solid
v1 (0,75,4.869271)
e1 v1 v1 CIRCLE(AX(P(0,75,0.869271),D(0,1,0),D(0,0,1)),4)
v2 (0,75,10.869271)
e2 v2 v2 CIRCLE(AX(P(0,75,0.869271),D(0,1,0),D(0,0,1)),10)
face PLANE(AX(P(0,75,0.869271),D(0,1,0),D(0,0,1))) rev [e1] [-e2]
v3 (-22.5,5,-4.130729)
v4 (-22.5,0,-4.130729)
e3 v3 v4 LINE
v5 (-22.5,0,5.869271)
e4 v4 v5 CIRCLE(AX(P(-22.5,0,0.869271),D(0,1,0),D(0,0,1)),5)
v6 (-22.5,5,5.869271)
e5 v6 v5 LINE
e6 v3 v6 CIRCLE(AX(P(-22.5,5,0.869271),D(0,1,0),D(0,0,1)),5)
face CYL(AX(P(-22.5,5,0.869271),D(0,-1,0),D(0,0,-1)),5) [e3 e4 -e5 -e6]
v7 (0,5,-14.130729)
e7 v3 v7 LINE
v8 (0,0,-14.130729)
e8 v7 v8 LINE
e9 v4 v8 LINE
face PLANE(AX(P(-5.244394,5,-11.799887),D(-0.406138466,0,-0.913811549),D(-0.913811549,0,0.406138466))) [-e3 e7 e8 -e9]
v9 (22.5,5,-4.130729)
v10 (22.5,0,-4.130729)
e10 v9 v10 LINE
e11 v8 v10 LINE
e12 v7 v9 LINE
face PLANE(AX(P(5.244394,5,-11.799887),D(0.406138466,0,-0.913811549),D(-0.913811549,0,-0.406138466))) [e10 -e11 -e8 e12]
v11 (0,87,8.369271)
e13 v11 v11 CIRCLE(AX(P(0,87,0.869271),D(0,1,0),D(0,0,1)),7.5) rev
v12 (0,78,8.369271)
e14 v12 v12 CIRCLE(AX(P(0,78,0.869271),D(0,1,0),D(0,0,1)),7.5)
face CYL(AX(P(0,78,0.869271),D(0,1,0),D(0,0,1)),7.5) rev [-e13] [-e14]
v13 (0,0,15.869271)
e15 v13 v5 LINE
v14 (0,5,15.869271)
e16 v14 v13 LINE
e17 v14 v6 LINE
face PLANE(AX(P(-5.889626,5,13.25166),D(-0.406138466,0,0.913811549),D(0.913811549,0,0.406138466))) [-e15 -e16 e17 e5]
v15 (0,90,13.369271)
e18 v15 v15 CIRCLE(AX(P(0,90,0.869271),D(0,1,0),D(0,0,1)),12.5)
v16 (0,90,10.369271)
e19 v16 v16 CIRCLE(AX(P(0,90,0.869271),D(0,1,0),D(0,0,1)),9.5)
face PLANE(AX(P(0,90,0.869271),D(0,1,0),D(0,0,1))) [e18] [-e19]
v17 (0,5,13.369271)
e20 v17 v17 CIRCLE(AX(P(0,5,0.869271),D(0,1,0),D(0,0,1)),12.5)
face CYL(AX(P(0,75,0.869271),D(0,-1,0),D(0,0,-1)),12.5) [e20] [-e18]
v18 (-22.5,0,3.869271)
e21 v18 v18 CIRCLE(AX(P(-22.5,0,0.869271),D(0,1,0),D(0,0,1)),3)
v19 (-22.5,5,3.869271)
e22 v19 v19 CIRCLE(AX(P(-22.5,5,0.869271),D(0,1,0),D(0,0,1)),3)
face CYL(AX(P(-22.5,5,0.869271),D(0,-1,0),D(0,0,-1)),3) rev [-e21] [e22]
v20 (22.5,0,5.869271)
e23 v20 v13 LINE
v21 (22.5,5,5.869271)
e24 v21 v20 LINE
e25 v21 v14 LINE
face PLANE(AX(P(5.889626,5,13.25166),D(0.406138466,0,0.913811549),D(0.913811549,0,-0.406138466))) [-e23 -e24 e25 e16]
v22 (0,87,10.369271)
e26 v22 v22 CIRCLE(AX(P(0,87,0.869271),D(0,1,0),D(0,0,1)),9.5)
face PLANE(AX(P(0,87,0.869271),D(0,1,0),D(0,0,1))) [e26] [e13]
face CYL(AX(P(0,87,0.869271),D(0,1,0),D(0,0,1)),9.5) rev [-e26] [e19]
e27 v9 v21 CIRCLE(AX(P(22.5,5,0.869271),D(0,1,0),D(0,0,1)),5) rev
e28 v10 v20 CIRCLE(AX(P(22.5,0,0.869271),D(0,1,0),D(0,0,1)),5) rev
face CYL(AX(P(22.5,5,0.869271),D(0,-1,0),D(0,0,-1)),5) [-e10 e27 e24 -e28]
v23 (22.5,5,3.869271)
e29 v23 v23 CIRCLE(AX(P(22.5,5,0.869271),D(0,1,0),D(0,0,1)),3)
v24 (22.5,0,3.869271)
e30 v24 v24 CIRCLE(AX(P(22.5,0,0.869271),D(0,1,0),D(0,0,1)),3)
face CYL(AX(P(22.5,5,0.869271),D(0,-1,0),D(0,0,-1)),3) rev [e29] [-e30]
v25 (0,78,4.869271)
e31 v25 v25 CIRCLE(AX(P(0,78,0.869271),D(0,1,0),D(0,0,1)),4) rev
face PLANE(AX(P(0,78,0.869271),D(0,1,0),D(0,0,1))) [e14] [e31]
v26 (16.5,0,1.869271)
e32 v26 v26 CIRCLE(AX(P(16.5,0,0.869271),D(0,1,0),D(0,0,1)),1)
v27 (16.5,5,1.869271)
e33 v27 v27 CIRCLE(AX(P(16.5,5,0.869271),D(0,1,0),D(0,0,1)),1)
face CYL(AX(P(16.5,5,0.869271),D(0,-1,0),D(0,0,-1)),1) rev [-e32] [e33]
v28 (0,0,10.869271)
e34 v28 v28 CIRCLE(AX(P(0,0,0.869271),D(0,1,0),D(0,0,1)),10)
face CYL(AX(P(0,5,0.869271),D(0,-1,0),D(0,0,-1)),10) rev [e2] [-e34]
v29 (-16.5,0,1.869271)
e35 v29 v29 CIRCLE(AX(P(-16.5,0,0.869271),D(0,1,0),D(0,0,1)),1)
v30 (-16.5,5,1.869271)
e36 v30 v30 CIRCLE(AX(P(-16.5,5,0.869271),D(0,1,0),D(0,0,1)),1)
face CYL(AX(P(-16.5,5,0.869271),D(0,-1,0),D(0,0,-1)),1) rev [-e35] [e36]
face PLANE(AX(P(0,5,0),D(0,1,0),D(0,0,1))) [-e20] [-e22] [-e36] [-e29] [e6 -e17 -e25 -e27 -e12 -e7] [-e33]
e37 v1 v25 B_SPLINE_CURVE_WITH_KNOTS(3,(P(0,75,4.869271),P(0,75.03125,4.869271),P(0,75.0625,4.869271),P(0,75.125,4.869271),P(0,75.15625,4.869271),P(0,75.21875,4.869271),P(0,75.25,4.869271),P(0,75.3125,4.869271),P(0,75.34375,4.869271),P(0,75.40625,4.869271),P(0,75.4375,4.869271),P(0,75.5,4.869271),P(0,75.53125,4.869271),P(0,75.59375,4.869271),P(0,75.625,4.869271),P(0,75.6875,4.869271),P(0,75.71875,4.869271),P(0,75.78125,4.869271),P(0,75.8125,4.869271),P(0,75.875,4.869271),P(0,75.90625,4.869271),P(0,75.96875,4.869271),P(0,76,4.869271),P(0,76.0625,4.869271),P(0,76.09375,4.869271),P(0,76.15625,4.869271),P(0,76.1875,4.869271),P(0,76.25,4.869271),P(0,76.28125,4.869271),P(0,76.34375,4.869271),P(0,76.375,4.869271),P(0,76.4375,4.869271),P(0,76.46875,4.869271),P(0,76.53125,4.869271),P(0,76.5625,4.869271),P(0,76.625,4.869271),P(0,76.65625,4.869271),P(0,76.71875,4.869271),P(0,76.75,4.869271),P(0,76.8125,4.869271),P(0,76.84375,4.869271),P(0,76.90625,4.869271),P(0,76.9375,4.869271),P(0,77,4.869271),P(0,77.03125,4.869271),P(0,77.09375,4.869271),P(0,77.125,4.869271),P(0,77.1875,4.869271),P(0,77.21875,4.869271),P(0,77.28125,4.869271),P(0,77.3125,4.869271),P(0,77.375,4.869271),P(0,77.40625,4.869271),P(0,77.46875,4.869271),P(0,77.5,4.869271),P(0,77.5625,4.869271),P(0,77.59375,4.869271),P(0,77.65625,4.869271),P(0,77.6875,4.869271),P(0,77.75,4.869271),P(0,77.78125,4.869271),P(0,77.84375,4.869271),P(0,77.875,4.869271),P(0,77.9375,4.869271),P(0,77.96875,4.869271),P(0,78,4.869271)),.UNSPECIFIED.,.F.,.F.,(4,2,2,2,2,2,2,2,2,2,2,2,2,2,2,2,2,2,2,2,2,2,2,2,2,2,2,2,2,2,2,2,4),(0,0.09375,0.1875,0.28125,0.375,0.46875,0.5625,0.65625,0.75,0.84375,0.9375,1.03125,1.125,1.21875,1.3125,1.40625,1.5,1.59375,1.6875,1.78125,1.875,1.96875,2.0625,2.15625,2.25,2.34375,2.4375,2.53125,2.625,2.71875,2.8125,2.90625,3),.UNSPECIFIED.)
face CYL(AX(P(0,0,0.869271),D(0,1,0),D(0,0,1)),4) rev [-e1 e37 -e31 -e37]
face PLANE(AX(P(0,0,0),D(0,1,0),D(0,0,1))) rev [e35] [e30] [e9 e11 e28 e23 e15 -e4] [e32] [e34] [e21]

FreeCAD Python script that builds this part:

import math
import FreeCAD as App
import Part
import Sketcher

V = App.Vector
Q = App.Units.Quantity

doc = App.newDocument("Part")
body = doc.addObject("PartDesign::Body", "Body")

sketch1 = doc.addObject("Sketcher::SketchObject", "Sketch")
body.addObject(sketch1)
sketch1.AttachmentSupport = (doc.XZ_Plane, [""])
sketch1.MapMode = "FlatFace"
sketch1.addGeometry(Part.LineSegment(V(0, -14.1, 0), V(-22.5, -4.1, 0)), False)
sketch1.addGeometry(Part.ArcOfCircle(Part.Circle(V(-22.5, 0.9, 0), V(0, 0, 1), 5), math.radians(90), math.radians(270)), False)
sketch1.addGeometry(Part.LineSegment(V(-22.5, 5.9, 0), V(0, 15.9, 0)), False)
sketch1.addGeometry(Part.LineSegment(V(0, 15.9, 0), V(22.5, 5.9, 0)), False)
sketch1.addGeometry(Part.ArcOfCircle(Part.Circle(V(22.5, 0.9, 0), V(0, 0, 1), 5), math.radians(-90), math.radians(90)), False)
sketch1.addGeometry(Part.LineSegment(V(22.5, -4.1, 0), V(0, -14.1, 0)), False)
sketch1.addGeometry(Part.Circle(V(22.5, 0.9, 0), V(0, 0, 1), 3), False)
sketch1.addGeometry(Part.Circle(V(16.5, 0.9, 0), V(0, 0, 1), 1), False)
sketch1.addGeometry(Part.Circle(V(0, 0.9, 0), V(0, 0, 1), 10), False)
sketch1.addGeometry(Part.Circle(V(-16.5, 0.9, 0), V(0, 0, 1), 1), False)
sketch1.addGeometry(Part.Circle(V(-22.5, 0.9, 0), V(0, 0, 1), 3), False)
sketch1.addConstraint(Sketcher.Constraint("Coincident", 0, 2, 1, 2))
sketch1.addConstraint(Sketcher.Constraint("Coincident", 1, 1, 2, 1))
sketch1.addConstraint(Sketcher.Constraint("Coincident", 2, 2, 3, 1))
sketch1.addConstraint(Sketcher.Constraint("Coincident", 3, 2, 4, 2))
sketch1.addConstraint(Sketcher.Constraint("Coincident", 4, 1, 5, 1))
sketch1.addConstraint(Sketcher.Constraint("Coincident", 5, 2, 0, 1))
sketch1.addConstraint(Sketcher.Constraint("Coincident", 6, 3, 4, 3))
sketch1.addConstraint(Sketcher.Constraint("Coincident", 10, 3, 1, 3))
sketch1.addConstraint(Sketcher.Constraint("Equal", 1, 4))
sketch1.addConstraint(Sketcher.Constraint("Equal", 7, 9))
sketch1.addConstraint(Sketcher.Constraint("Equal", 6, 10))
sketch1.addConstraint(Sketcher.Constraint("Symmetric", 1, 3, 4, 3, -2))
sketch1.addConstraint(Sketcher.Constraint("Symmetric", 7, 3, 9, 3, -2))
sketch1.addConstraint(Sketcher.Constraint("PointOnObject", 8, 3, -2))
sketch1.addConstraint(Sketcher.Constraint("PointOnObject", 2, 2, -2))
sketch1.addConstraint(Sketcher.Constraint("PointOnObject", 5, 2, -2))
sketch1.addConstraint(Sketcher.Constraint("Parallel", 0, 3))
sketch1.addConstraint(Sketcher.Constraint("Parallel", 2, 5))
sketch1.addConstraint(Sketcher.Constraint("Horizontal", 6, 3, 7, 3))
sketch1.addConstraint(Sketcher.Constraint("Horizontal", 7, 3, 8, 3))
sketch1.addConstraint(Sketcher.Constraint("Vertical", 10, 3, 0, 2))
sketch1.addConstraint(Sketcher.Constraint("Vertical", 0, 2, 1, 1))
sketch1.addConstraint(Sketcher.Constraint("Vertical", 6, 3, 3, 2))
sketch1.addConstraint(Sketcher.Constraint("Diameter", 6, Q("6 mm")))
sketch1.addConstraint(Sketcher.Constraint("Diameter", 7, Q("2 mm")))
sketch1.addConstraint(Sketcher.Constraint("Diameter", 8, Q("20 mm")))
sketch1.addConstraint(Sketcher.Constraint("Radius", 1, Q("5 mm")))
sketch1.addConstraint(Sketcher.Constraint("DistanceX", 1, 3, 4, 3, Q("45 mm")))
sketch1.addConstraint(Sketcher.Constraint("DistanceX", 7, 3, 4, 3, Q("6 mm")))
sketch1.addConstraint(Sketcher.Constraint("DistanceY", 8, 3, 2, 2, Q("15 mm")))
sketch1.addConstraint(Sketcher.Constraint("DistanceY", -1, 1, 1, 3, Q("0.869271 mm")))
pad1 = doc.addObject("PartDesign::Pad", "Pad")
body.addObject(pad1)
pad1.Profile = sketch1
pad1.Length = 5
pad1.Reversed = True

sketch2 = doc.addObject("Sketcher::SketchObject", "Sketch001")
body.addObject(sketch2)
sketch2.AttachmentSupport = (doc.XZ_Plane, [""])
sketch2.MapMode = "FlatFace"
sketch2.AttachmentOffset = App.Placement(V(0, 0, -5), App.Rotation())
sketch2.addGeometry(Part.Circle(V(0, 1, 0), V(0, 0, 1), 12), False)
sketch2.addGeometry(Part.Circle(V(0, 1, 0), V(0, 0, 1), 10), False)
sketch2.addConstraint(Sketcher.Constraint("Coincident", 1, 3, 0, 3))
sketch2.addConstraint(Sketcher.Constraint("PointOnObject", 0, 3, -2))
sketch2.addConstraint(Sketcher.Constraint("Diameter", 0, Q("25 mm")))
sketch2.addConstraint(Sketcher.Constraint("Diameter", 1, Q("20 mm")))
sketch2.addConstraint(Sketcher.Constraint("DistanceY", -1, 1, 0, 3, Q("0.869271 mm")))
pad2 = doc.addObject("PartDesign::Pad", "Pad001")
body.addObject(pad2)
pad2.Profile = sketch2
pad2.Length = 70
pad2.Reversed = True

sketch3 = doc.addObject("Sketcher::SketchObject", "Sketch002")
body.addObject(sketch3)
sketch3.AttachmentSupport = (doc.XZ_Plane, [""])
sketch3.MapMode = "FlatFace"
sketch3.AttachmentOffset = App.Placement(V(0, 0, -75), App.Rotation())
sketch3.addGeometry(Part.Circle(V(0, 1, 0), V(0, 0, 1), 12), False)
sketch3.addConstraint(Sketcher.Constraint("PointOnObject", 0, 3, -2))
sketch3.addConstraint(Sketcher.Constraint("Diameter", 0, Q("25 mm")))
sketch3.addConstraint(Sketcher.Constraint("DistanceY", -1, 1, 0, 3, Q("0.869271 mm")))
pad3 = doc.addObject("PartDesign::Pad", "Pad002")
body.addObject(pad3)
pad3.Profile = sketch3
pad3.Length = 15
pad3.Reversed = True

sketch4 = doc.addObject("Sketcher::SketchObject", "Sketch003")
body.addObject(sketch4)
sketch4.AttachmentSupport = (doc.XZ_Plane, [""])
sketch4.MapMode = "FlatFace"
sketch4.AttachmentOffset = App.Placement(V(0, 0, -90), App.Rotation())
sketch4.addGeometry(Part.Circle(V(0, 0.9, 0), V(0, 0, 1), 4), False)
sketch4.addConstraint(Sketcher.Constraint("PointOnObject", 0, 3, -2))
sketch4.addConstraint(Sketcher.Constraint("Diameter", 0, Q("8 mm")))
sketch4.addConstraint(Sketcher.Constraint("DistanceY", -1, 1, 0, 3, Q("0.869271 mm")))
pocket1 = doc.addObject("PartDesign::Pocket", "Pocket")
body.addObject(pocket1)
pocket1.Profile = sketch4
pocket1.Type = "ThroughAll"
pocket1.Reversed = True

sketch5 = doc.addObject("Sketcher::SketchObject", "Sketch004")
body.addObject(sketch5)
sketch5.AttachmentSupport = (doc.XZ_Plane, [""])
sketch5.MapMode = "FlatFace"
sketch5.AttachmentOffset = App.Placement(V(0, 0, -90), App.Rotation())
sketch5.addGeometry(Part.Circle(V(0, 1, 0), V(0, 0, 1), 8), False)
sketch5.addConstraint(Sketcher.Constraint("PointOnObject", 0, 3, -2))
sketch5.addConstraint(Sketcher.Constraint("Diameter", 0, Q("15 mm")))
sketch5.addConstraint(Sketcher.Constraint("DistanceY", -1, 1, 0, 3, Q("0.869271 mm")))
pocket2 = doc.addObject("PartDesign::Pocket", "Pocket001")
body.addObject(pocket2)
pocket2.Profile = sketch5
pocket2.Length = 12
pocket2.Reversed = True

sketch6 = doc.addObject("Sketcher::SketchObject", "Sketch005")
body.addObject(sketch6)
sketch6.AttachmentSupport = (doc.XZ_Plane, [""])
sketch6.MapMode = "FlatFace"
sketch6.AttachmentOffset = App.Placement(V(0, 0, -90), App.Rotation())
sketch6.addGeometry(Part.Circle(V(0, 1, 0), V(0, 0, 1), 10), False)
sketch6.addConstraint(Sketcher.Constraint("PointOnObject", 0, 3, -2))
sketch6.addConstraint(Sketcher.Constraint("Diameter", 0, Q("19 mm")))
sketch6.addConstraint(Sketcher.Constraint("DistanceY", -1, 1, 0, 3, Q("0.869271 mm")))
pocket3 = doc.addObject("PartDesign::Pocket", "Pocket002")
body.addObject(pocket3)
pocket3.Profile = sketch6
pocket3.Length = 3
pocket3.Reversed = True

doc.recompute()
